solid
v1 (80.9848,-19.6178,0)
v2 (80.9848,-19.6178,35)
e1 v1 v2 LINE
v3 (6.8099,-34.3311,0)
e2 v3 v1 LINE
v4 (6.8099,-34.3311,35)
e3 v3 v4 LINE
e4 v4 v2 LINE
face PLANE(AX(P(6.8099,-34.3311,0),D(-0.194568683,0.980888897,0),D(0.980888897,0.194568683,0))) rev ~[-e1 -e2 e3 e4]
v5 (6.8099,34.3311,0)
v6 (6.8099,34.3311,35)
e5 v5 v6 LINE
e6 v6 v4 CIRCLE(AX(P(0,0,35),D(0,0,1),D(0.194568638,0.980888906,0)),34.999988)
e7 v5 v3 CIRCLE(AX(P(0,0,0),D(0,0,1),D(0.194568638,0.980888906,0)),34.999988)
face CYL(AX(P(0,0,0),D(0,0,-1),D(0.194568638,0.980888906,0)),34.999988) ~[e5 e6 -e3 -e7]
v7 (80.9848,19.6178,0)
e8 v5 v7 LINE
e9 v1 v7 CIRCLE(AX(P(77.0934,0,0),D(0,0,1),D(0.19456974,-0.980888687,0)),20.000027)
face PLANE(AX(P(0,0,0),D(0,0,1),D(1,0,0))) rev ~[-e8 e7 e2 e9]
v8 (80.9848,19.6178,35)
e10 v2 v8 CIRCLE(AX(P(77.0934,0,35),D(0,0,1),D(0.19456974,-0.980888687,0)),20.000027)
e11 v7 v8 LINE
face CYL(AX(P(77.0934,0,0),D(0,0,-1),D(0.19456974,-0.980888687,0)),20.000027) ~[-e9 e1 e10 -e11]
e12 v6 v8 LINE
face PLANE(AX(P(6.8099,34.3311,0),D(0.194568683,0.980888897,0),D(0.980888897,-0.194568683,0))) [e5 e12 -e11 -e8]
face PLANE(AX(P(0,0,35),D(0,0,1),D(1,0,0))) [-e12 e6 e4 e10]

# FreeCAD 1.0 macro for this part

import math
import FreeCAD as App
import Part
import Sketcher
from FreeCAD import Vector
Q = App.Units.Quantity

doc = App.newDocument("Part")
params = doc.addObject("Spreadsheet::Sheet", "Params")
for row, (alias, value) in enumerate([
    ("sketch1_radius", "35 mm"),
    ("sketch1_radius2", "20 mm"),
    ("pad1_length", "35 mm"),
], start=1):
    params.set(f"A{row}", alias)
    params.set(f"B{row}", "=" + value)
    params.setAlias(f"B{row}", alias)

body = doc.addObject("PartDesign::Body", "Body")

# Sketch on XY plane
sketch1 = doc.addObject("Sketcher::SketchObject", "Sketch")
body.addObject(sketch1)
sketch1.AttachmentSupport = (doc.XY_Plane, [""])
sketch1.MapMode = "FlatFace"
sketch1.addGeometry([
    Part.LineSegment(Vector(81, 20, 0), Vector(7, 34, 0)),
    Part.ArcOfCircle(Part.Circle(Vector(0, 0, 0), Vector(0, 0, 1), 35), math.radians(79), math.radians(281)),
    Part.LineSegment(Vector(7, -34, 0), Vector(81, -20, 0)),
    Part.ArcOfCircle(Part.Circle(Vector(77, 0, 0), Vector(0, 0, 1), 20), math.radians(-79), math.radians(79)),
], False)
sketch1.addConstraint([
    Sketcher.Constraint("Tangent", 0, 2, 1, 1),
    Sketcher.Constraint("Tangent", 1, 2, 2, 1),
    Sketcher.Constraint("Tangent", 2, 2, 3, 1),
    Sketcher.Constraint("Tangent", 3, 2, 0, 1),
    Sketcher.Constraint("Coincident", 1, 3, -1, 1),
    Sketcher.Constraint("PointOnObject", 3, 3, -1),
    Sketcher.Constraint("Radius", 1, 35.0),
    Sketcher.Constraint("Radius", 3, 20.0),
    Sketcher.Constraint("Angle", 0, Q("168.7805 deg")),
])
sketch1.setExpression("Constraints[6]", "Params.sketch1_radius")
sketch1.setExpression("Constraints[7]", "Params.sketch1_radius2")
pad1 = doc.addObject("PartDesign::Pad", "Pad")
body.addObject(pad1)
pad1.Profile = sketch1
pad1.setExpression("Length", "Params.pad1_length")

doc.recompute()
